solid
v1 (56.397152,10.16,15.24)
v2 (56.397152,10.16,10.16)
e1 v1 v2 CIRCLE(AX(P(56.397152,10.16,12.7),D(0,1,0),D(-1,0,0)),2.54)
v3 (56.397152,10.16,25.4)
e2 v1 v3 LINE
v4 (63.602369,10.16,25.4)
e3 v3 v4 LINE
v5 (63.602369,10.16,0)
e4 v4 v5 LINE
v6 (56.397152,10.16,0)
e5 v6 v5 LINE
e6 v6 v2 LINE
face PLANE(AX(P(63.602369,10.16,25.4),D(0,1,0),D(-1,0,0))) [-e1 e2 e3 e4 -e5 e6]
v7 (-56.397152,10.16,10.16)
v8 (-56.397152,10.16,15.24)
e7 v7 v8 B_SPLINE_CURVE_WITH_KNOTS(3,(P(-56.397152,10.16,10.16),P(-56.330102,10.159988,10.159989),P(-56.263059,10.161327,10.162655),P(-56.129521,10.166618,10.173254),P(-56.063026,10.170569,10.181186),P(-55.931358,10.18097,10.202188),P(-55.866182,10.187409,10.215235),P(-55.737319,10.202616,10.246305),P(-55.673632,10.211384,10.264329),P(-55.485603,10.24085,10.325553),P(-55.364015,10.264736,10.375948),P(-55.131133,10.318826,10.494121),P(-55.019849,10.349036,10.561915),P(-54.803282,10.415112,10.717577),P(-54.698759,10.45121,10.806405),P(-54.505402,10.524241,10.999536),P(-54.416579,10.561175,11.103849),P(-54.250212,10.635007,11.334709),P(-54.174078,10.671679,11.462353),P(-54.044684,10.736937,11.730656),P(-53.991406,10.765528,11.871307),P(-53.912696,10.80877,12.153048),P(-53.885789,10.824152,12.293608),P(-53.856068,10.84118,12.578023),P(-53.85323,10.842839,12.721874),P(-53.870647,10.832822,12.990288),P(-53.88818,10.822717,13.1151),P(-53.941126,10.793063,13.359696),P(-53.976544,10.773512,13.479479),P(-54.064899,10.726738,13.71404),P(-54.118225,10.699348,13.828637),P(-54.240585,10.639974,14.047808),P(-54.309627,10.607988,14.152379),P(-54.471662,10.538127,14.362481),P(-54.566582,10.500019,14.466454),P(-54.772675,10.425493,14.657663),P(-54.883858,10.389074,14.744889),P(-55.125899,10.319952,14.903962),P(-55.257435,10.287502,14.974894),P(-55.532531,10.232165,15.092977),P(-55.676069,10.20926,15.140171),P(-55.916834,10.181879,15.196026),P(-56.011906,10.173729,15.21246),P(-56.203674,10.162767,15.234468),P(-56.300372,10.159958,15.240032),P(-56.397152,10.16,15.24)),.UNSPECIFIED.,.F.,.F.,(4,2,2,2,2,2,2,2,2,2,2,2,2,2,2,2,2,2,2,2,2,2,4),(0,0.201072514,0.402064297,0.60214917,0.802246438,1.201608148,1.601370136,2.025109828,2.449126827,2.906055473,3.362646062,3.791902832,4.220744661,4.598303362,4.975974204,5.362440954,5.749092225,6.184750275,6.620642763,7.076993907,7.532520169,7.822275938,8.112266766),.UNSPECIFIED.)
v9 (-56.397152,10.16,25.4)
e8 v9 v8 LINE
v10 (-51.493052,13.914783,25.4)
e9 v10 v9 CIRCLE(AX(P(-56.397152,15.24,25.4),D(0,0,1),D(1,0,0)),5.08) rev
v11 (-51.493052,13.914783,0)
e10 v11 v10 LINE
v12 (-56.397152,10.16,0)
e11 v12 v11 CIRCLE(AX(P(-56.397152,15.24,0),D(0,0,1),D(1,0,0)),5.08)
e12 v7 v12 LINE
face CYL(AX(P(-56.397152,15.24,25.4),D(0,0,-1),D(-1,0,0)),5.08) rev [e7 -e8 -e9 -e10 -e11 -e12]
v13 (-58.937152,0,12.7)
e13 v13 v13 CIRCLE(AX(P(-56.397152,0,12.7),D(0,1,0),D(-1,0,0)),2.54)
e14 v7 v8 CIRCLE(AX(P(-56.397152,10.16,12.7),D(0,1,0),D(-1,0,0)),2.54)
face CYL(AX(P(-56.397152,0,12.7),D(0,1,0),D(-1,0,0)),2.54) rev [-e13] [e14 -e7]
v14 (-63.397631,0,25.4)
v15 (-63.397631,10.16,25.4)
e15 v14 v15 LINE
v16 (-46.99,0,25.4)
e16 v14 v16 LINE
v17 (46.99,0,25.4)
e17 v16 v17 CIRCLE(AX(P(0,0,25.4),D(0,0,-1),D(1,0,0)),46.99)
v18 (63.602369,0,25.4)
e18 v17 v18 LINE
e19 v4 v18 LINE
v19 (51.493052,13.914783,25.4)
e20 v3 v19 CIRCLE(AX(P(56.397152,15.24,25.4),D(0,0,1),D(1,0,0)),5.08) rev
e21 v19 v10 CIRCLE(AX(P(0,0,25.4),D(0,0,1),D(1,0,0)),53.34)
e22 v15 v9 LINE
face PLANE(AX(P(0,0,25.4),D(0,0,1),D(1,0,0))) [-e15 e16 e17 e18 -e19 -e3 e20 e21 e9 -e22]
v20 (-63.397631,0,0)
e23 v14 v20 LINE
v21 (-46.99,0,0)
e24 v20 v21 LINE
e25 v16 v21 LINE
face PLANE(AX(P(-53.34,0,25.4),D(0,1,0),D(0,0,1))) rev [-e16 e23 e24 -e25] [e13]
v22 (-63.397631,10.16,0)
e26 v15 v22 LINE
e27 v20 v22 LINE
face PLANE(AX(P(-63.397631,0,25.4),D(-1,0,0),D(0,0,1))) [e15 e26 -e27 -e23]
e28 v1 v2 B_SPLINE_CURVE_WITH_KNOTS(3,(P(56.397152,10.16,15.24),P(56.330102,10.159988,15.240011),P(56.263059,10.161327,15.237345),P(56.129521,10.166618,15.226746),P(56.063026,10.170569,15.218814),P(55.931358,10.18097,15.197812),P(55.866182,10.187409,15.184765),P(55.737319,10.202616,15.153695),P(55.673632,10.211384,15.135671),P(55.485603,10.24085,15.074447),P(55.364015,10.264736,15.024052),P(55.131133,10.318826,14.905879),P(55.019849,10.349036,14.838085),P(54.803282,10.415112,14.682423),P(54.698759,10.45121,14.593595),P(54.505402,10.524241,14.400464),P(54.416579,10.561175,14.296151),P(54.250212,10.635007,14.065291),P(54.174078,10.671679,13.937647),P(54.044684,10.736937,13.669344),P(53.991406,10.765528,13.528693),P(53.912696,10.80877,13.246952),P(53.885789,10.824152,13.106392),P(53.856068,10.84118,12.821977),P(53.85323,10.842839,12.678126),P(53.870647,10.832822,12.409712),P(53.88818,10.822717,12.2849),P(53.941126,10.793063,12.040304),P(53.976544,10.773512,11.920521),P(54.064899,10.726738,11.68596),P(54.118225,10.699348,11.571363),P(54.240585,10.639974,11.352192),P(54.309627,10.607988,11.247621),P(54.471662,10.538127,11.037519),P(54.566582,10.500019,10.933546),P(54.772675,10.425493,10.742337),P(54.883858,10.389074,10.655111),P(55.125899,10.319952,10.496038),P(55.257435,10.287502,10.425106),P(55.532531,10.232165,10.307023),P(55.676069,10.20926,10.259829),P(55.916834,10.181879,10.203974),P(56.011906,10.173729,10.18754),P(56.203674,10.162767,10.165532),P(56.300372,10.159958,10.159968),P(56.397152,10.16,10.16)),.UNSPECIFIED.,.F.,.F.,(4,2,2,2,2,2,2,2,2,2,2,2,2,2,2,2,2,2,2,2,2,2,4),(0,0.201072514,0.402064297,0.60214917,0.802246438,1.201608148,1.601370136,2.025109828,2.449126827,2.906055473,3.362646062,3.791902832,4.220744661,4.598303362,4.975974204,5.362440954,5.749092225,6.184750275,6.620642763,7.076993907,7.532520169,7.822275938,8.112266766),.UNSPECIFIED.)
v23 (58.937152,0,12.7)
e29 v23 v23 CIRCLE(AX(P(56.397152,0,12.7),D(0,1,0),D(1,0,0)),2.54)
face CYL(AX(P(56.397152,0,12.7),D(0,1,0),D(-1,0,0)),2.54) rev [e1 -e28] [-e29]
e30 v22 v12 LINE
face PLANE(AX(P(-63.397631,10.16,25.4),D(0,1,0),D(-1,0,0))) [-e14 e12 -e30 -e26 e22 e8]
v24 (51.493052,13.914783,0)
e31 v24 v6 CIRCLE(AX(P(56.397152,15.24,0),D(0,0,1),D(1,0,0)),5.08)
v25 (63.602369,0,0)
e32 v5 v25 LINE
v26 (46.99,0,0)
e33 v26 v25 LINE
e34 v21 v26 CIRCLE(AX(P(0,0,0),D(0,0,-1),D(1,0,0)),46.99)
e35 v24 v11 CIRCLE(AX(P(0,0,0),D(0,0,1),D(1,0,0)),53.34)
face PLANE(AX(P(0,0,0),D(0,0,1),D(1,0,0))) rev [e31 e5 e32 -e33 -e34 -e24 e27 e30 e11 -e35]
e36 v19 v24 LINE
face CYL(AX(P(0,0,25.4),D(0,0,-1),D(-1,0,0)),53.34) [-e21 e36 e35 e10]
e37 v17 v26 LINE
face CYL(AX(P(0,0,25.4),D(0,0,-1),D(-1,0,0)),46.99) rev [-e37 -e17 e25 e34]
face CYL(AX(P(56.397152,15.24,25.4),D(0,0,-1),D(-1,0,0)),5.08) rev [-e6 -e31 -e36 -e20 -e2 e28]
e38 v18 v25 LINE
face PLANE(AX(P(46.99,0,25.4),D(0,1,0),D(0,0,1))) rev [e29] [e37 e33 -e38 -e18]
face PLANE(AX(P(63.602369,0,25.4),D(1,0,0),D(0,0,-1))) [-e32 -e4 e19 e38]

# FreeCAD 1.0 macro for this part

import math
import FreeCAD as App
import Part
import Sketcher
from FreeCAD import Vector
Q = App.Units.Quantity


def edges_at(feature, points):
    """Names of the edges that pass closest to the given points."""
    edges = feature.Shape.Edges
    near = lambda p: min(range(len(edges)), key=lambda i: edges[i].distToShape(Part.Vertex(*p))[0])
    return sorted({f"Edge{near(p) + 1}" for p in points})


def add_polygon(sketch, points):
    """Adds a closed chain of lines whose ends are joined by coincident constraints."""
    first, n = sketch.GeometryCount, len(points)
    for a, b in zip(points, points[1:] + points[:1]):
        sketch.addGeometry(Part.LineSegment(App.Vector(*a, 0), App.Vector(*b, 0)), False)
    for i in range(n):
        sketch.addConstraint(Sketcher.Constraint("Coincident", first + i, 2, first + (i + 1) % n, 1))

doc = App.newDocument("Part")
body = doc.addObject("PartDesign::Body", "Body")

sketch1 = body.newObject("Sketcher::SketchObject", "Sketch")
sketch1.AttachmentSupport = (doc.getObject("XY_Plane"), [""])
sketch1.MapMode = "FlatFace"
sketch1.addGeometry([
    Part.LineSegment(Vector(-53.34, 0, 0), Vector(-46.99, 0, 0)),
    Part.ArcOfCircle(Part.Circle(Vector(0, 0, 0), Vector(0, 0, 1), 46.99), math.radians(0), math.radians(180)),
    Part.LineSegment(Vector(46.99, 0, 0), Vector(53.34, 0, 0)),
    Part.ArcOfCircle(Part.Circle(Vector(0, 0, 0), Vector(0, 0, 1), 53.34), math.radians(0), math.radians(180)),
], False)
sketch1.addConstraint([
    Sketcher.Constraint("Coincident", 0, 2, 1, 2),
    Sketcher.Constraint("Coincident", 1, 1, 2, 1),
    Sketcher.Constraint("Coincident", 2, 2, 3, 1),
    Sketcher.Constraint("Coincident", 3, 2, 0, 1),
    Sketcher.Constraint("Horizontal", 0),
    Sketcher.Constraint("Horizontal", 2),
    Sketcher.Constraint("Coincident", 1, 3, -1, 1),
    Sketcher.Constraint("Coincident", 3, 3, -1, 1),
    Sketcher.Constraint("PointOnObject", 0, 2, -1),
    Sketcher.Constraint("PointOnObject", 1, 1, -1),
    Sketcher.Constraint("Radius", 3, Q("2.1 in")),
    Sketcher.Constraint("Radius", 1, Q("1.85 in")),
])
pad1 = body.newObject("PartDesign::Pad", "Pad")
pad1.Profile = sketch1
pad1.Length = Q("1 in")

sketch2 = body.newObject("Sketcher::SketchObject", "Sketch001")
sketch2.AttachmentSupport = (doc.getObject("XY_Plane"), [""])
sketch2.MapMode = "FlatFace"
add_polygon(sketch2, [(-46.99, 10.16), (-46.99, 0), (-63.397631, 0), (-63.397631, 10.16)])
add_polygon(sketch2, [(63.602369, 10.16), (63.602369, 0), (47.194737, 0), (47.194737, 10.16)])
sketch2.addConstraint([
    Sketcher.Constraint("Vertical", 0),
    Sketcher.Constraint("Horizontal", 1),
    Sketcher.Constraint("Vertical", 2),
    Sketcher.Constraint("Horizontal", 3),
    Sketcher.Constraint("Vertical", 4),
    Sketcher.Constraint("Horizontal", 5),
    Sketcher.Constraint("Vertical", 6),
    Sketcher.Constraint("Horizontal", 7),
    Sketcher.Constraint("PointOnObject", 0, 2, -1),
    Sketcher.Constraint("PointOnObject", 4, 2, -1),
    Sketcher.Constraint("Horizontal", 3, 2, 6, 2),
    Sketcher.Constraint("Equal", 3, 5),
    Sketcher.Constraint("DistanceY", 0, 2, 0, 1, Q("0.4 in")),
    Sketcher.Constraint("DistanceX", 1, 2, 4, 2, Q("5 in")),
    Sketcher.Constraint("DistanceX", 0, 2, -1, 1, Q("1.85 in")),
    Sketcher.Constraint("DistanceX", 1, 2, 1, 1, Q("16.407631 mm")),
])
pad2 = body.newObject("PartDesign::Pad", "Pad001")
pad2.Profile = sketch2
pad2.Length = Q("1 in")
doc.recompute()

fillet = body.newObject("PartDesign::Fillet", "Fillet")
fillet.Base = (pad2, edges_at(pad2, [(-52.363, 10.16, 12.7), (52.363, 10.16, 12.7)]))
fillet.Radius = Q("0.2 in")

sketch3 = body.newObject("Sketcher::SketchObject", "Sketch002")
sketch3.AttachmentSupport = (doc.getObject("XZ_Plane"), [""])
sketch3.MapMode = "FlatFace"
sketch3.AttachmentOffset = App.Placement(Vector(0, 0, -0.4 * 25.4), App.Rotation())
sketch3.addGeometry([
    Part.Circle(Vector(-56.397152, 12.7, 0), Vector(0, 0, 1), 2.54),
    Part.Circle(Vector(56.397152, 12.7, 0), Vector(0, 0, 1), 2.54),
], False)
sketch3.addConstraint([
    Sketcher.Constraint("Equal", 0, 1),
    Sketcher.Constraint("Symmetric", 0, 3, 1, 3, -2),
    Sketcher.Constraint("Diameter", 0, Q("0.2 in")),
    Sketcher.Constraint("DistanceY", -1, 1, 0, 3, Q("0.5 in")),
    Sketcher.Constraint("DistanceX", 0, 3, -1, 1, Q("56.397152 mm")),
])
pocket1 = body.newObject("PartDesign::Pocket", "Pocket")
pocket1.Profile = sketch3
pocket1.Type = "ThroughAll"
pocket1.Midplane = True

doc.recompute()
